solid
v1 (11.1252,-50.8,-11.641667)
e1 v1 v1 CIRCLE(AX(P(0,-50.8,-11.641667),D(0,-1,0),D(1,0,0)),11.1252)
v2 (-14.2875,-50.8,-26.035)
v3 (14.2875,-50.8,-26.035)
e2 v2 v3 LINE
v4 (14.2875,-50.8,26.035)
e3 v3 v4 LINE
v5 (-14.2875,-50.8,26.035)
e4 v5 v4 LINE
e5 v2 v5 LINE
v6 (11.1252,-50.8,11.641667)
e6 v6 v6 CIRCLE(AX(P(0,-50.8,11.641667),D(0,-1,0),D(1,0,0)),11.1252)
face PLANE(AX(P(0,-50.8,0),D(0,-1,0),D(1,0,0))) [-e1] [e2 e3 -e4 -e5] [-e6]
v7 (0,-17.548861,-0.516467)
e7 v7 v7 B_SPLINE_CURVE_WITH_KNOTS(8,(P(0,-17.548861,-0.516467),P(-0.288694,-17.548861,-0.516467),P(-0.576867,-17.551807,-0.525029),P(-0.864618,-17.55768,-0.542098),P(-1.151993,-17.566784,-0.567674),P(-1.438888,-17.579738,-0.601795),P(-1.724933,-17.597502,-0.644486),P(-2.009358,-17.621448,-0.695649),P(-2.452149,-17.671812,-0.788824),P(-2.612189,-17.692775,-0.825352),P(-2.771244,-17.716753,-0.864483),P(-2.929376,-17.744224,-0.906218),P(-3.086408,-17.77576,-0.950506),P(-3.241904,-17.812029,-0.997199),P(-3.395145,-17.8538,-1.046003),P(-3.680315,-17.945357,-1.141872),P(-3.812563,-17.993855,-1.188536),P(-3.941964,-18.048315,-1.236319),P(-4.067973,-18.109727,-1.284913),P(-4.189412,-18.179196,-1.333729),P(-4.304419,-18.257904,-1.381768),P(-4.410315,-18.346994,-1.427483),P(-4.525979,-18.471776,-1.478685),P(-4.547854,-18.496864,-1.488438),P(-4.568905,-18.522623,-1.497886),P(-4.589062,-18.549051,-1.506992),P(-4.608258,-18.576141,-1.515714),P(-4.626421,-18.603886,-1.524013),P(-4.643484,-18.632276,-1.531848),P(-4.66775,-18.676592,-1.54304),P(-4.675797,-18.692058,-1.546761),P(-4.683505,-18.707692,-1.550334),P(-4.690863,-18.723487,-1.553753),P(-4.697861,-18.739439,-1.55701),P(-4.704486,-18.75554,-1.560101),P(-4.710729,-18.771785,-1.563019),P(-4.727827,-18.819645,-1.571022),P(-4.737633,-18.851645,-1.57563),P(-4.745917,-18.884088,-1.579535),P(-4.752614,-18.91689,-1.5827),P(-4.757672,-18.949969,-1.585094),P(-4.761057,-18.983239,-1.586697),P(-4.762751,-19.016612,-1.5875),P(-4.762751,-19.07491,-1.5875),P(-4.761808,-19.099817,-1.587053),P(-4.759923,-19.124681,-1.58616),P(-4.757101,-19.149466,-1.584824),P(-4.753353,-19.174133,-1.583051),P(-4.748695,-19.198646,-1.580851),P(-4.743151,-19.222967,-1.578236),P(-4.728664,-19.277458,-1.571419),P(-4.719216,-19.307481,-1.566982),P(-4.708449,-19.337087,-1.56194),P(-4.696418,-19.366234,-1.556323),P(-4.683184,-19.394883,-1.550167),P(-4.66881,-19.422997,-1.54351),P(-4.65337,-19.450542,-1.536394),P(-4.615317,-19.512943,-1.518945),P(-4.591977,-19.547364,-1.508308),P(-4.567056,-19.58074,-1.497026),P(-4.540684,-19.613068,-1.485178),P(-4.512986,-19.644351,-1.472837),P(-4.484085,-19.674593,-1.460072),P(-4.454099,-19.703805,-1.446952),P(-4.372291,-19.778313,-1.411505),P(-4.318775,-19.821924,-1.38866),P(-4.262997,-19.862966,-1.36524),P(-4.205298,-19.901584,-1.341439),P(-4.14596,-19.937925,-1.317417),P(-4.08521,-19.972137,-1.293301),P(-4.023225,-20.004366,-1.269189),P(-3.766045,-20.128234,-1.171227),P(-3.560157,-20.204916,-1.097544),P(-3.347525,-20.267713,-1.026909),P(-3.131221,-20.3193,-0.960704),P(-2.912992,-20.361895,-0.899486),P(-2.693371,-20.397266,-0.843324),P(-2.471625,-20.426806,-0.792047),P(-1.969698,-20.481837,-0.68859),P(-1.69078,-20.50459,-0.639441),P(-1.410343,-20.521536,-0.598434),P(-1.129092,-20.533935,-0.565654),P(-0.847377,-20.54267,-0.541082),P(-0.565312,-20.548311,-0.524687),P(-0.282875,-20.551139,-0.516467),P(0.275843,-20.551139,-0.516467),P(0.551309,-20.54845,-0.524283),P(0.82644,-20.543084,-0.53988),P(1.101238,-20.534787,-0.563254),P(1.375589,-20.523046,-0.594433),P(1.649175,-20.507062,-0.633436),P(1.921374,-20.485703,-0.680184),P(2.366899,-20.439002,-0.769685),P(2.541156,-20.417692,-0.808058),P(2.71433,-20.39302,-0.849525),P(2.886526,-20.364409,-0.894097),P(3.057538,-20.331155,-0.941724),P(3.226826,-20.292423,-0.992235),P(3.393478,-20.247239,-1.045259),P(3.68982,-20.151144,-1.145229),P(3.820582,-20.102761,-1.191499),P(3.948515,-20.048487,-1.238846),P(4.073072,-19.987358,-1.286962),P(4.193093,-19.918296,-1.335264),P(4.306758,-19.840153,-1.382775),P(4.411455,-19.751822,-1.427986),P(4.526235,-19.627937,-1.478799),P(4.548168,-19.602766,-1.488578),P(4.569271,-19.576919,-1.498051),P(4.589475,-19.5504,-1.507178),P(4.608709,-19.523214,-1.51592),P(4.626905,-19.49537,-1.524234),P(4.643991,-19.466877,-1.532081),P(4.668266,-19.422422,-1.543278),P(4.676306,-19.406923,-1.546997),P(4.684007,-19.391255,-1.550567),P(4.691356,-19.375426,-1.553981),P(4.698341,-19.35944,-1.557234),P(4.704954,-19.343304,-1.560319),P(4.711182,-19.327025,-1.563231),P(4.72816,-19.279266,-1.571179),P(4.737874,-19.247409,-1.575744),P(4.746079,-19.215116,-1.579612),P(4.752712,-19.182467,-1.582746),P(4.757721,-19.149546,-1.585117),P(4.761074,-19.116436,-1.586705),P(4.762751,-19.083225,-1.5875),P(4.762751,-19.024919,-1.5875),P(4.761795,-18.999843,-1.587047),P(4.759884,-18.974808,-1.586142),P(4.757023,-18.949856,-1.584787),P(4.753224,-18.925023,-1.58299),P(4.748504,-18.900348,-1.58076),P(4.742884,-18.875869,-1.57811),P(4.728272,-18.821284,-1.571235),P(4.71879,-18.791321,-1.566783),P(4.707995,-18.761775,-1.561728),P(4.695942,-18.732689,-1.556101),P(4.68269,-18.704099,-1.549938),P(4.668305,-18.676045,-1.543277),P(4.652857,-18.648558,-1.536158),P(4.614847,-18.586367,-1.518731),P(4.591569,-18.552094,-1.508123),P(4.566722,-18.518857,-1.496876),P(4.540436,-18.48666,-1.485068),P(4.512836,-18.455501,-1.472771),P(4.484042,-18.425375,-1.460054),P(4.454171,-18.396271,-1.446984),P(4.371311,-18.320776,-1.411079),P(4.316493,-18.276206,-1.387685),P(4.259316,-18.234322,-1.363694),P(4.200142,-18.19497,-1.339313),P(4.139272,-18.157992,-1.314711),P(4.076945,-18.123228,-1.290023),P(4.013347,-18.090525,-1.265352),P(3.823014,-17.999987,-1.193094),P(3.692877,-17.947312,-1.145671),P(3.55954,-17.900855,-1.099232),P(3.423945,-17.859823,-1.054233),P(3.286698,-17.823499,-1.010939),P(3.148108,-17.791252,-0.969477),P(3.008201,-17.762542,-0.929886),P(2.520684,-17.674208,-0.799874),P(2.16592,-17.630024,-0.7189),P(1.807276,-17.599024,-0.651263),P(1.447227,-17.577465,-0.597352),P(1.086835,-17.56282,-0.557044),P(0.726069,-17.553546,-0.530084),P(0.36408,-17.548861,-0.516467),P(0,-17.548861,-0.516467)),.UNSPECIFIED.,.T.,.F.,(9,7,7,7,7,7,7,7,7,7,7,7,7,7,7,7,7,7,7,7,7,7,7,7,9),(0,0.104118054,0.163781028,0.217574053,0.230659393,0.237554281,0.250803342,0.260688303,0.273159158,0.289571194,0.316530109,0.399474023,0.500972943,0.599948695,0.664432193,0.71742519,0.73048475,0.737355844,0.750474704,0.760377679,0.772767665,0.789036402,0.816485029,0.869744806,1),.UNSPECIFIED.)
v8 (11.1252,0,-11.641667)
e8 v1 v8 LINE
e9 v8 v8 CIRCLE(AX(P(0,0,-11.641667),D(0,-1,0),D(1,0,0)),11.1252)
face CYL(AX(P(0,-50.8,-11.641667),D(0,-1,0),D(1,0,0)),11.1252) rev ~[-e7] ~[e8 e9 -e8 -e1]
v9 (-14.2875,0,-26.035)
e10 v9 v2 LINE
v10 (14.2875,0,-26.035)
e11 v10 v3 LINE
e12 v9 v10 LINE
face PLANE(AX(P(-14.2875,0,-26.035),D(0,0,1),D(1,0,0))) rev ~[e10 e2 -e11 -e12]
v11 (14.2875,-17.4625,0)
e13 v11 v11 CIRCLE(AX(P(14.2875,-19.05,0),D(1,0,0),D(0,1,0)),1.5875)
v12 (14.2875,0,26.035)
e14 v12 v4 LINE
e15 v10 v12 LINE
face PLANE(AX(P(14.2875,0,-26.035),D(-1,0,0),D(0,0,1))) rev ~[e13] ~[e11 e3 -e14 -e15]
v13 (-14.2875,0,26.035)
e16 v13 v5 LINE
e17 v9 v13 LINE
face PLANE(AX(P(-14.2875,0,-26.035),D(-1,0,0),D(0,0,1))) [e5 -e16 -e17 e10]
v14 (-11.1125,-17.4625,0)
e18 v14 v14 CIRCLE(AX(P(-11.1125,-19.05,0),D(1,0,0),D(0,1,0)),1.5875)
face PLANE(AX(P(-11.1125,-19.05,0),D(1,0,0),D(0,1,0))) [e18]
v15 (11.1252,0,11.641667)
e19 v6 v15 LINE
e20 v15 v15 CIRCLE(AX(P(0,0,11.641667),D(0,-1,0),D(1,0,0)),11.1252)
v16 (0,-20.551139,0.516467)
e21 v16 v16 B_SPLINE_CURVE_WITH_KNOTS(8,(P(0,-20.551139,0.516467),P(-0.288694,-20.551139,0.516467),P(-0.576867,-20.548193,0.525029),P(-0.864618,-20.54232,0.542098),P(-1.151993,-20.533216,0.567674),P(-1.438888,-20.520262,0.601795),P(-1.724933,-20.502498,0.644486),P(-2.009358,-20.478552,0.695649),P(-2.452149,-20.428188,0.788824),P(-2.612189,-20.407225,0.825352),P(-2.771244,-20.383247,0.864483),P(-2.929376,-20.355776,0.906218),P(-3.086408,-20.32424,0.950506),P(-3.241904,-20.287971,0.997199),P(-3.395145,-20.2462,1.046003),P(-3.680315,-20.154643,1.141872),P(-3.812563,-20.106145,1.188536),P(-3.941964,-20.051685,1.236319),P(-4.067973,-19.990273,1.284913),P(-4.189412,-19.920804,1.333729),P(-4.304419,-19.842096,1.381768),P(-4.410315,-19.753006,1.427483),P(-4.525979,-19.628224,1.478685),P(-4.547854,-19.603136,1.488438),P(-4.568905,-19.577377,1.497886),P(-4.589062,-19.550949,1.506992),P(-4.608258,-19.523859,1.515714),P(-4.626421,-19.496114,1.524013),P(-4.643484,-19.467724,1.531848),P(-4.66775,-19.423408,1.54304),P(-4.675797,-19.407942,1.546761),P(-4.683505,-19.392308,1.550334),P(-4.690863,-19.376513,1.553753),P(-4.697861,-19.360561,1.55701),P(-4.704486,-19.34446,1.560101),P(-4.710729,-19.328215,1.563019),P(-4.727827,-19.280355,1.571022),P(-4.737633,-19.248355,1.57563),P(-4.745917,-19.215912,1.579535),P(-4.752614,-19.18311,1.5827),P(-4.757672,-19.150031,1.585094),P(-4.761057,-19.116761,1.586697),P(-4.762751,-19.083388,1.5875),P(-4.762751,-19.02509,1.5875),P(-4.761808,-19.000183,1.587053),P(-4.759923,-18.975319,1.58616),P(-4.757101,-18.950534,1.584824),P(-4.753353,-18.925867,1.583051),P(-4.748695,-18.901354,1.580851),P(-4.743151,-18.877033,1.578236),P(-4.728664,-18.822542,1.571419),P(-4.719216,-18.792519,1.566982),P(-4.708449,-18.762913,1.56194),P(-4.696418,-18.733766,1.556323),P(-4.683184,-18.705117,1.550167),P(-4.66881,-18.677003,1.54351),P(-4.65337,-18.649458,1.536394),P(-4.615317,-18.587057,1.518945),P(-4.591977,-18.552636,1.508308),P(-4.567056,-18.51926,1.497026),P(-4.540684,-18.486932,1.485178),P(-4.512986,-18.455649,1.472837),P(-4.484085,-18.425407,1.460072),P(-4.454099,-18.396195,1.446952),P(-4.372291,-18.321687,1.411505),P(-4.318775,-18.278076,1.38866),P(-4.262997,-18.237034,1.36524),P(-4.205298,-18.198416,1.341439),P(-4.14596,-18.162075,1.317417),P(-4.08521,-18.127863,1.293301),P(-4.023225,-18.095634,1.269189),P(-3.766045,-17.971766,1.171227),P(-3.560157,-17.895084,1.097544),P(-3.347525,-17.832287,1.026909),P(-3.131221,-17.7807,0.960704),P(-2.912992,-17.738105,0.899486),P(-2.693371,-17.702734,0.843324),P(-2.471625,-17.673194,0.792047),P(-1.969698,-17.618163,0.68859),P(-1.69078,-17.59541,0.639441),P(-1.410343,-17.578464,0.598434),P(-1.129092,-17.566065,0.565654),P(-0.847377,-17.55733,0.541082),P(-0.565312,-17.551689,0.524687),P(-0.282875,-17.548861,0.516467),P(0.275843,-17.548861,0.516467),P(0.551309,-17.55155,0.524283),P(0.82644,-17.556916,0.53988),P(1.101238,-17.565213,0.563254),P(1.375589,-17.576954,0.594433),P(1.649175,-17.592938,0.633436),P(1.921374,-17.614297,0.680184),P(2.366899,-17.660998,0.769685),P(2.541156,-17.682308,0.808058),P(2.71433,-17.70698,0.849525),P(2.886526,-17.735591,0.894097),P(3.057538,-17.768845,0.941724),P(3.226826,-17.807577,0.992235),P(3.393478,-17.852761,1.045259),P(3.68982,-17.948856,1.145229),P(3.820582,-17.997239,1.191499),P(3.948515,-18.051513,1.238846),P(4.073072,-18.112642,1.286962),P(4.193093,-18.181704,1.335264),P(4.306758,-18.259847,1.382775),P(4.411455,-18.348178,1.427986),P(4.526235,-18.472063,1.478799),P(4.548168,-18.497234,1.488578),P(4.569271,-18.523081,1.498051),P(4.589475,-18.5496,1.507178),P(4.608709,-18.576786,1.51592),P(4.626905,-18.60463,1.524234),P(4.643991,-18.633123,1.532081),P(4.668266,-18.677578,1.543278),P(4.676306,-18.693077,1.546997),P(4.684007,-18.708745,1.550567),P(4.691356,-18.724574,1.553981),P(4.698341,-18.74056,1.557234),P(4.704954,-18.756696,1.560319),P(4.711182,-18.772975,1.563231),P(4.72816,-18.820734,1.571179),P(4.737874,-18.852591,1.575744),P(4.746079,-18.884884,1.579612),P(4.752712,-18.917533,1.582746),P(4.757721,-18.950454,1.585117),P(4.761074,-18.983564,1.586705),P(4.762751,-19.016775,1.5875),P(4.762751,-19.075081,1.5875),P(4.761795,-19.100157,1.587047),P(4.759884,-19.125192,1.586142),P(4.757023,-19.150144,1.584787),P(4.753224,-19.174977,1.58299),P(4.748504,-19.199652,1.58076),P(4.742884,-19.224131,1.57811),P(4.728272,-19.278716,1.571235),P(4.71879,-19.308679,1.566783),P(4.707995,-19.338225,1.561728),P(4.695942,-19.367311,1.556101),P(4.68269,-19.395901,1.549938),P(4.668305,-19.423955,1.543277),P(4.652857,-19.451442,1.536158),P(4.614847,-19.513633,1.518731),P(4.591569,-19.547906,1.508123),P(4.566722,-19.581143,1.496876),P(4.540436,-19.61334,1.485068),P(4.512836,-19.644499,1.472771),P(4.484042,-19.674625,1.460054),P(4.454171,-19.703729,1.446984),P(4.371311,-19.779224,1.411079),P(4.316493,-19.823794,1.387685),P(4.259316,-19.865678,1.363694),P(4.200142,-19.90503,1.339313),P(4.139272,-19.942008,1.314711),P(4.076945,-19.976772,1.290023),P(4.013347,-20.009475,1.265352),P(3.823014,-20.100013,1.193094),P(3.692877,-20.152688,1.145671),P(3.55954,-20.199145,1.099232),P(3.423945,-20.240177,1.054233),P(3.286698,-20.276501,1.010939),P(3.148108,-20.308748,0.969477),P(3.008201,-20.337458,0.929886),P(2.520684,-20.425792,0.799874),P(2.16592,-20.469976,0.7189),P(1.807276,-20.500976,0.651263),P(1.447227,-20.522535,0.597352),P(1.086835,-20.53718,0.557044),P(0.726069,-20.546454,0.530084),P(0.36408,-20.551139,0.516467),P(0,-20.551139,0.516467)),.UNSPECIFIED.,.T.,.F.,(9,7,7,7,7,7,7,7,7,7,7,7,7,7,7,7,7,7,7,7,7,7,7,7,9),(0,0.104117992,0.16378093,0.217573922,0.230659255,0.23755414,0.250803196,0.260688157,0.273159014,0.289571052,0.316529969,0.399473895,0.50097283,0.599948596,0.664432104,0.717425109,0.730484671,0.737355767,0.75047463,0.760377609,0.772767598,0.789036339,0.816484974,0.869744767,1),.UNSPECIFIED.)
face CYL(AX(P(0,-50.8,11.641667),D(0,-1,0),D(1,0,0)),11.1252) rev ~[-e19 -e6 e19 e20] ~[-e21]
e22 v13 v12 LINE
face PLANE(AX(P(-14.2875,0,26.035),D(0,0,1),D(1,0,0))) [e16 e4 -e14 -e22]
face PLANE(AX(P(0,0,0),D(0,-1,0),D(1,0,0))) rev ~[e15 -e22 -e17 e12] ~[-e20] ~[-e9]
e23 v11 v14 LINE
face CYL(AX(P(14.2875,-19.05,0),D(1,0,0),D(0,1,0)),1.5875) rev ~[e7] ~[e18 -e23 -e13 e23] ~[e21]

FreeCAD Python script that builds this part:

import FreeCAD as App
import Part
import Sketcher
Q = App.Units.Quantity


def add_polygon(sketch, points):
    """Adds a closed chain of lines whose ends are joined by coincident constraints."""
    first, n = sketch.GeometryCount, len(points)
    for a, b in zip(points, points[1:] + points[:1]):
        sketch.addGeometry(Part.LineSegment(App.Vector(*a, 0), App.Vector(*b, 0)), False)
    for i in range(n):
        sketch.addConstraint(Sketcher.Constraint("Coincident", first + i, 2, first + (i + 1) % n, 1))

doc = App.newDocument("Part")
body = doc.addObject("PartDesign::Body", "Body")

sketch1 = body.newObject("Sketcher::SketchObject", "Sketch")
sketch1.AttachmentSupport = (doc.getObject("XZ_Plane"), [""])
sketch1.MapMode = "FlatFace"
add_polygon(sketch1, [(-14, 26), (-14, -26), (14, -26), (14, 26)])
sketch1.addConstraint([
    Sketcher.Constraint("Vertical", 0),
    Sketcher.Constraint("Horizontal", 1),
    Sketcher.Constraint("Vertical", 2),
    Sketcher.Constraint("Horizontal", 3),
    Sketcher.Constraint("Symmetric", 0, 2, 2, 2, -1, 1),
    Sketcher.Constraint("DistanceY", 0, 2, 0, 1, Q("2.05 in")),
    Sketcher.Constraint("DistanceX", 1, 1, 1, 2, Q("1.125 in")),
])
pad1 = body.newObject("PartDesign::Pad", "Pad")
pad1.Profile = sketch1
pad1.Length = Q("2 in")

sketch2 = body.newObject("Sketcher::SketchObject", "Sketch001")
sketch2.AttachmentSupport = (doc.getObject("XZ_Plane"), [""])
sketch2.MapMode = "FlatFace"
sketch2.AttachmentOffset = App.Placement(App.Vector(0, 0, 2 * 25.4), App.Rotation())
sketch2.addGeometry([
    Part.Circle(App.Vector(0, 12, 0), App.Vector(0, 0, 1), 11),
    Part.Circle(App.Vector(0, -12, 0), App.Vector(0, 0, 1), 11),
], False)
sketch2.addConstraint([
    Sketcher.Constraint("Equal", 0, 1),
    Sketcher.Constraint("Symmetric", 0, 3, 1, 3, -1, 1),
    Sketcher.Constraint("PointOnObject", 0, 3, -2),
    Sketcher.Constraint("Diameter", 0, Q("0.876 in")),
    Sketcher.Constraint("DistanceY", -1, 1, 0, 3, Q("11.641667 mm")),
])
pocket1 = body.newObject("PartDesign::Pocket", "Pocket")
pocket1.Profile = sketch2
pocket1.Type = "ThroughAll"

sketch3 = body.newObject("Sketcher::SketchObject", "Sketch002")
sketch3.AttachmentSupport = (doc.getObject("YZ_Plane"), [""])
sketch3.MapMode = "FlatFace"
sketch3.AttachmentOffset = App.Placement(App.Vector(0, 0, 0.5625 * 25.4), App.Rotation())
sketch3.addGeometry(Part.Circle(App.Vector(-19.1, 0, 0), App.Vector(0, 0, 1), 1.6), False)
sketch3.addConstraint([
    Sketcher.Constraint("PointOnObject", 0, 3, -1),
    Sketcher.Constraint("Diameter", 0, Q("0.125 in")),
    Sketcher.Constraint("DistanceX", 0, 3, -1, 1, Q("0.75 in")),
])
pocket2 = body.newObject("PartDesign::Pocket", "Pocket001")
pocket2.Profile = sketch3
pocket2.Length = Q("1 in")

doc.recompute()
